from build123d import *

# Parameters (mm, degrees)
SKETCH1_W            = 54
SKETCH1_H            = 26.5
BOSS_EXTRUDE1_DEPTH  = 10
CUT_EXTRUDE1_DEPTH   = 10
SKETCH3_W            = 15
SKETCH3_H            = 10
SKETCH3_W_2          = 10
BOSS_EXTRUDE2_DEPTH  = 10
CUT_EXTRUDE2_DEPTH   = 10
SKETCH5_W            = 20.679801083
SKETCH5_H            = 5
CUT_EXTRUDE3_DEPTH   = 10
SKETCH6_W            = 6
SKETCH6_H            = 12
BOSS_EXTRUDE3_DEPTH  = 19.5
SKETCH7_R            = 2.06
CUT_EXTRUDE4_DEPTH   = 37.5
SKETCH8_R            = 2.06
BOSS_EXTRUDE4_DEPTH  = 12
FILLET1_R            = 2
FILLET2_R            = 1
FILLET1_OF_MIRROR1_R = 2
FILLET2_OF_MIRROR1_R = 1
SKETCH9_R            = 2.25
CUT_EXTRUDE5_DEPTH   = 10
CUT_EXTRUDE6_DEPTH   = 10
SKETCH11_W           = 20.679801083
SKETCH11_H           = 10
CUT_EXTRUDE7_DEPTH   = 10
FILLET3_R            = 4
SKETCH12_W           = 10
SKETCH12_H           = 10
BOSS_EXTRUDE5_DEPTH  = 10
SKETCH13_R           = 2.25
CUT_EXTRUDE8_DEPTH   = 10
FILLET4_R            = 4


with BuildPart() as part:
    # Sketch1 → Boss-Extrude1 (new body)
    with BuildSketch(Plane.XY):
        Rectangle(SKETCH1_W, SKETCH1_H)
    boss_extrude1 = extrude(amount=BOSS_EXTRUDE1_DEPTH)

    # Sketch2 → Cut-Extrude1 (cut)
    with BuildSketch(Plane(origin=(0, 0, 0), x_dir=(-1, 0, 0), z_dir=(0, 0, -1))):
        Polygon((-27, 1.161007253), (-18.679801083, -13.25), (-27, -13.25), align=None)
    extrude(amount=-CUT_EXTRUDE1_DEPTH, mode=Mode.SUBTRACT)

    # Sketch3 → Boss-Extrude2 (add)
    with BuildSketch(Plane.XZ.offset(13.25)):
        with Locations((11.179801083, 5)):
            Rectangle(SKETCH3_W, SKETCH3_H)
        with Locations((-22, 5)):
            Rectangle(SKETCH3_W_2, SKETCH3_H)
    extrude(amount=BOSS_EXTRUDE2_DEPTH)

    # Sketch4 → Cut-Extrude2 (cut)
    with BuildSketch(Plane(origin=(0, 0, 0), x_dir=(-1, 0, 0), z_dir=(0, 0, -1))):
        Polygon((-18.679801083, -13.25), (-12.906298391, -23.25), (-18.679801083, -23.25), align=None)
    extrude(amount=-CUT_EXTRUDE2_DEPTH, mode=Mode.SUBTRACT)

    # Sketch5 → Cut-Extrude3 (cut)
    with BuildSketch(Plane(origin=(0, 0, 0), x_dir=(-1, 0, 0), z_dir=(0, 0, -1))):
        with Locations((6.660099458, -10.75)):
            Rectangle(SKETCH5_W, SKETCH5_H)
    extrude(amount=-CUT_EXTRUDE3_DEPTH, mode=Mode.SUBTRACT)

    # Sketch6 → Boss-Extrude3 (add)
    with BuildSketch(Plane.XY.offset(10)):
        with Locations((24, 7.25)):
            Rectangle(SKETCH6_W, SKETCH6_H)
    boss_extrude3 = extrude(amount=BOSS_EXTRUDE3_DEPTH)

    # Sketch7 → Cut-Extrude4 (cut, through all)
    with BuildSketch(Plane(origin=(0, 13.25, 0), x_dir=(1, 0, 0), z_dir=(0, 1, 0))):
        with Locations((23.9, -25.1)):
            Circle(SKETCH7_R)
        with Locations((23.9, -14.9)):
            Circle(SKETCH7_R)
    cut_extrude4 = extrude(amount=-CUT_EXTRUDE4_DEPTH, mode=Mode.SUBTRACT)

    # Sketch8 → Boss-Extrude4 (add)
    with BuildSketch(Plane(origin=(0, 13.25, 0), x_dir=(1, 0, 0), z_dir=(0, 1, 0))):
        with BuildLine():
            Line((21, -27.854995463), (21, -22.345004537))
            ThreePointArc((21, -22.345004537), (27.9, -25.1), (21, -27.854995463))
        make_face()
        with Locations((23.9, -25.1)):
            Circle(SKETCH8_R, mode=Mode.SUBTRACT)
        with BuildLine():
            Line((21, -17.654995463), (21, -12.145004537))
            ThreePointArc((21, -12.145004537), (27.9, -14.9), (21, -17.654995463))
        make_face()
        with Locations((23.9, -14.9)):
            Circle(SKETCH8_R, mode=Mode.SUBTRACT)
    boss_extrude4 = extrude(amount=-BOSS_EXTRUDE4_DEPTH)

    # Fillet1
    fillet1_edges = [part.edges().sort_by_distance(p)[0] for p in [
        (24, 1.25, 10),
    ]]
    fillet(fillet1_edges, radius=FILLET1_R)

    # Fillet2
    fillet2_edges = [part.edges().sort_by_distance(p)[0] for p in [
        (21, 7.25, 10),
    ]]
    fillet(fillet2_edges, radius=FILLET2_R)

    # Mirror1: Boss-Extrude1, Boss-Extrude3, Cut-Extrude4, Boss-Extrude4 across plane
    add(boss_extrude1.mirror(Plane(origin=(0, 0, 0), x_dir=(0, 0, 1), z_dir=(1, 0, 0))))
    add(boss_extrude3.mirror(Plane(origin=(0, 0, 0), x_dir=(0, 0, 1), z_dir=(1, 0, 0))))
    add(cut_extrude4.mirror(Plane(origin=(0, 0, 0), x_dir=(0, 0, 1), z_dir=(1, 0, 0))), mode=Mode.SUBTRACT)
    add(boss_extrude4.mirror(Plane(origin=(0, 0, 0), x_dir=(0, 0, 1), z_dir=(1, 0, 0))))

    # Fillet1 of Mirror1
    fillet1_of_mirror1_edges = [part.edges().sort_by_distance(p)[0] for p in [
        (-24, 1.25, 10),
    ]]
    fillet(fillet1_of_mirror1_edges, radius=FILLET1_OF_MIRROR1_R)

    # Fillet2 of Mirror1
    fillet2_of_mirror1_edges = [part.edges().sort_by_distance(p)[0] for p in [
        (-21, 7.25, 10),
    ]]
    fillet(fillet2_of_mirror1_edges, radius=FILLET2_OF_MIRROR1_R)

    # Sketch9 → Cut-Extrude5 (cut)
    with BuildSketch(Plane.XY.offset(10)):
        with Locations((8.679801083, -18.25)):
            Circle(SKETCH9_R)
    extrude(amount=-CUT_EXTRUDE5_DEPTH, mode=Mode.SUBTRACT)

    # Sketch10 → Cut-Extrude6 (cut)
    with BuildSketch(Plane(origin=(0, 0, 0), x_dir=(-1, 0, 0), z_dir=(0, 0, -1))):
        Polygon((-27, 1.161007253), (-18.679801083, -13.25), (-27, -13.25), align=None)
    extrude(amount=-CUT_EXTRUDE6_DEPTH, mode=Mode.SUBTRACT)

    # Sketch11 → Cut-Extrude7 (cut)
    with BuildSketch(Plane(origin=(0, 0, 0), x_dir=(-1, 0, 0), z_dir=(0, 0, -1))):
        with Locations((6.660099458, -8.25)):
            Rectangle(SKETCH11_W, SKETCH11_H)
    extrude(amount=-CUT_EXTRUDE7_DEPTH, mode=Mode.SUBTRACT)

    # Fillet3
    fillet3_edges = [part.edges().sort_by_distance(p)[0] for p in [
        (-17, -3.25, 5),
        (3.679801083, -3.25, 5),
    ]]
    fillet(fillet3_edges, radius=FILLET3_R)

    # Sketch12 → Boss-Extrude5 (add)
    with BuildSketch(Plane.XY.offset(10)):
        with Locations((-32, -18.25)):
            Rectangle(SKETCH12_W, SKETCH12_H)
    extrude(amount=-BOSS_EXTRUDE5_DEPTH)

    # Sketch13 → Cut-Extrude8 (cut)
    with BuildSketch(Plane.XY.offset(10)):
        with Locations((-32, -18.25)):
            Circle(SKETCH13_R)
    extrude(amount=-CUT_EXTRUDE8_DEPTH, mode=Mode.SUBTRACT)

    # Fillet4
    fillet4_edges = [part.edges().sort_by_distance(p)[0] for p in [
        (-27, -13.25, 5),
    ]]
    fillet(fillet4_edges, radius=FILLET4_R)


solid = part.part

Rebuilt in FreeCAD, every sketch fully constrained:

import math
import FreeCAD as App
import Part
import Sketcher
Q = App.Units.Quantity


def edges_at(feature, points):
    """Names of the edges that pass closest to the given points."""
    edges = feature.Shape.Edges
    near = lambda p: min(range(len(edges)), key=lambda i: edges[i].distToShape(Part.Vertex(*p))[0])
    return sorted({f"Edge{near(p) + 1}" for p in points})


def add_polygon(sketch, points):
    """Adds a closed chain of lines whose ends are joined by coincident constraints."""
    first, n = sketch.GeometryCount, len(points)
    for a, b in zip(points, points[1:] + points[:1]):
        sketch.addGeometry(Part.LineSegment(App.Vector(*a, 0), App.Vector(*b, 0)), False)
    for i in range(n):
        sketch.addConstraint(Sketcher.Constraint("Coincident", first + i, 2, first + (i + 1) % n, 1))

doc = App.newDocument("Part")
body = doc.addObject("PartDesign::Body", "Body")

# Sketch on XY plane
sketch1 = body.newObject("Sketcher::SketchObject", "Sketch")
sketch1.AttachmentSupport = (doc.getObject("XY_Plane"), [""])
sketch1.MapMode = "FlatFace"
add_polygon(sketch1, [(-27, 13), (-27, -13), (27, -13), (27, 13)])  # lines 0-3
sketch1.addConstraint([
    Sketcher.Constraint("Vertical", 0),
    Sketcher.Constraint("Horizontal", 1),
    Sketcher.Constraint("Vertical", 2),
    Sketcher.Constraint("Horizontal", 3),
    Sketcher.Constraint("Symmetric", 0, 2, 2, 2, -1, 1),
    Sketcher.Constraint("DistanceX", 1, 1, 1, 2, Q("54 mm")),
    Sketcher.Constraint("DistanceY", 0, 2, 0, 1, Q("26.5 mm")),
])
pad1 = body.newObject("PartDesign::Pad", "Pad")
pad1.Profile = sketch1
pad1.Length = 10

# Sketch on XY plane
sketch2 = body.newObject("Sketcher::SketchObject", "Sketch001")
sketch2.AttachmentSupport = (doc.getObject("XY_Plane"), [""])
sketch2.MapMode = "FlatFace"
add_polygon(sketch2, [(19, -13), (27, 1), (27, -13)])  # lines 0-2
sketch2.addConstraint([
    Sketcher.Constraint("Vertical", 1),
    Sketcher.Constraint("Horizontal", 2),
    Sketcher.Constraint("Angle", 0, Q("60 deg")),
    Sketcher.Constraint("DistanceX", -1, 1, 0, 2, Q("27 mm")),
    Sketcher.Constraint("DistanceY", 1, 2, -1, 1, Q("13.25 mm")),
    Sketcher.Constraint("DistanceX", 2, 2, 2, 1, Q("8.320199 mm")),
])
pocket1 = body.newObject("PartDesign::Pocket", "Pocket")
pocket1.Profile = sketch2
pocket1.Length = 10
pocket1.Reversed = True

# Sketch on XZ plane
sketch3 = body.newObject("Sketcher::SketchObject", "Sketch002")
sketch3.AttachmentSupport = (doc.getObject("XZ_Plane"), [""])
sketch3.MapMode = "FlatFace"
sketch3.AttachmentOffset = App.Placement(App.Vector(0, 0, 13.25), App.Rotation())
add_polygon(sketch3, [(4, 10), (4, 0), (19, 0), (19, 10)])  # lines 0-3
add_polygon(sketch3, [(-27, 10), (-27, 0), (-17, 0), (-17, 10)])  # lines 4-7
sketch3.addConstraint([
    Sketcher.Constraint("Vertical", 0),
    Sketcher.Constraint("Horizontal", 1),
    Sketcher.Constraint("Vertical", 2),
    Sketcher.Constraint("Horizontal", 3),
    Sketcher.Constraint("Vertical", 4),
    Sketcher.Constraint("Horizontal", 5),
    Sketcher.Constraint("Vertical", 6),
    Sketcher.Constraint("Horizontal", 7),
    Sketcher.Constraint("PointOnObject", 0, 2, -1),
    Sketcher.Constraint("PointOnObject", 4, 2, -1),
    Sketcher.Constraint("Horizontal", 3, 2, 6, 2),
    Sketcher.Constraint("Equal", 7, 0),
    Sketcher.Constraint("DistanceX", 1, 1, 1, 2, Q("15 mm")),
    Sketcher.Constraint("DistanceX", 5, 1, 5, 2, Q("10 mm")),
    Sketcher.Constraint("DistanceX", 4, 2, -1, 1, Q("27 mm")),
    Sketcher.Constraint("DistanceX", -1, 1, 0, 2, Q("3.679801 mm")),
])
pad2 = body.newObject("PartDesign::Pad", "Pad001")
pad2.Profile = sketch3
pad2.Length = 10

# Sketch on XY plane
sketch4 = body.newObject("Sketcher::SketchObject", "Sketch003")
sketch4.AttachmentSupport = (doc.getObject("XY_Plane"), [""])
sketch4.MapMode = "FlatFace"
add_polygon(sketch4, [(13, -23), (19, -13), (19, -23)])  # lines 0-2
sketch4.addConstraint([
    Sketcher.Constraint("Vertical", 1),
    Sketcher.Constraint("Horizontal", 2),
    Sketcher.Constraint("DistanceY", 1, 2, 1, 1, Q("10 mm")),
    Sketcher.Constraint("Angle", 0, Q("60 deg")),
    Sketcher.Constraint("DistanceY", 0, 2, -1, 1, Q("13.25 mm")),
    Sketcher.Constraint("DistanceX", -1, 1, 0, 2, Q("18.679801 mm")),
])
pocket2 = body.newObject("PartDesign::Pocket", "Pocket001")
pocket2.Profile = sketch4
pocket2.Length = 10
pocket2.Reversed = True

# Sketch on XY plane
sketch5 = body.newObject("Sketcher::SketchObject", "Sketch004")
sketch5.AttachmentSupport = (doc.getObject("XY_Plane"), [""])
sketch5.MapMode = "FlatFace"
add_polygon(sketch5, [(4, -8), (4, -13), (-17, -13), (-17, -8)])  # lines 0-3
sketch5.addConstraint([
    Sketcher.Constraint("Vertical", 0),
    Sketcher.Constraint("Horizontal", 1),
    Sketcher.Constraint("Vertical", 2),
    Sketcher.Constraint("Horizontal", 3),
    Sketcher.Constraint("DistanceY", 0, 2, 0, 1, Q("5 mm")),
    Sketcher.Constraint("DistanceX", 1, 2, -1, 1, Q("17 mm")),
    Sketcher.Constraint("DistanceY", 0, 2, -1, 1, Q("13.25 mm")),
    Sketcher.Constraint("DistanceX", 1, 2, 1, 1, Q("20.679801 mm")),
])
pocket3 = body.newObject("PartDesign::Pocket", "Pocket002")
pocket3.Profile = sketch5
pocket3.Length = 10
pocket3.Reversed = True

# Sketch on XY plane
sketch6 = body.newObject("Sketcher::SketchObject", "Sketch005")
sketch6.AttachmentSupport = (doc.getObject("XY_Plane"), [""])
sketch6.MapMode = "FlatFace"
sketch6.AttachmentOffset = App.Placement(App.Vector(0, 0, 10), App.Rotation())
add_polygon(sketch6, [(21, 13), (21, 1), (27, 1), (27, 13)])  # lines 0-3
sketch6.addConstraint([
    Sketcher.Constraint("Vertical", 0),
    Sketcher.Constraint("Horizontal", 1),
    Sketcher.Constraint("Vertical", 2),
    Sketcher.Constraint("Horizontal", 3),
    Sketcher.Constraint("DistanceX", 1, 1, 1, 2, Q("6 mm")),
    Sketcher.Constraint("DistanceY", 0, 2, 0, 1, Q("12 mm")),
    Sketcher.Constraint("DistanceX", -1, 1, 0, 2, Q("21 mm")),
    Sketcher.Constraint("DistanceY", -1, 1, 0, 2, Q("1.25 mm")),
])
pad3 = body.newObject("PartDesign::Pad", "Pad002")
pad3.Profile = sketch6
pad3.Length = 19.5

# Sketch on XZ plane
sketch7 = body.newObject("Sketcher::SketchObject", "Sketch006")
sketch7.AttachmentSupport = (doc.getObject("XZ_Plane"), [""])
sketch7.MapMode = "FlatFace"
sketch7.AttachmentOffset = App.Placement(App.Vector(0, 0, -13.25), App.Rotation())
sketch7.addGeometry([
    Part.Circle(App.Vector(23.9, 25.1, 0), App.Vector(0, 0, 1), 2.1),
    Part.Circle(App.Vector(23.9, 14.9, 0), App.Vector(0, 0, 1), 2.1),
], False)
sketch7.addConstraint([
    Sketcher.Constraint("Equal", 0, 1),
    Sketcher.Constraint("Vertical", 0, 3, 1, 3),
    Sketcher.Constraint("Diameter", 0, Q("4.12 mm")),
    Sketcher.Constraint("DistanceX", -1, 1, 0, 3, Q("23.9 mm")),
    Sketcher.Constraint("DistanceY", -1, 1, 0, 3, Q("25.1 mm")),
    Sketcher.Constraint("DistanceY", -1, 1, 1, 3, Q("14.9 mm")),
])
pocket4 = body.newObject("PartDesign::Pocket", "Pocket003")
pocket4.Profile = sketch7
pocket4.Type = "ThroughAll"
pocket4.Reversed = True

# Sketch on XZ plane
sketch8 = body.newObject("Sketcher::SketchObject", "Sketch007")
sketch8.AttachmentSupport = (doc.getObject("XZ_Plane"), [""])
sketch8.MapMode = "FlatFace"
sketch8.AttachmentOffset = App.Placement(App.Vector(0, 0, -13.25), App.Rotation())
sketch8.addGeometry([
    Part.LineSegment(App.Vector(21, 22.3, 0), App.Vector(21, 27.9, 0)),  # 0
    Part.ArcOfCircle(Part.Circle(App.Vector(23.9, 25.1, 0), App.Vector(0, 0, 1), 4), math.radians(-136), math.radians(136)),  # 1
    Part.Circle(App.Vector(23.9, 25.1, 0), App.Vector(0, 0, 1), 2.1),  # 2
    Part.LineSegment(App.Vector(21, 12.1, 0), App.Vector(21, 17.7, 0)),  # 3
    Part.ArcOfCircle(Part.Circle(App.Vector(23.9, 14.9, 0), App.Vector(0, 0, 1), 4), math.radians(-136), math.radians(136)),  # 4
    Part.Circle(App.Vector(23.9, 14.9, 0), App.Vector(0, 0, 1), 2.1),  # 5
], False)
sketch8.addConstraint([
    Sketcher.Constraint("Coincident", 0, 1, 1, 1),
    Sketcher.Constraint("Coincident", 1, 2, 0, 2),
    Sketcher.Constraint("Coincident", 3, 1, 4, 1),
    Sketcher.Constraint("Coincident", 4, 2, 3, 2),
    Sketcher.Constraint("Vertical", 0),
    Sketcher.Constraint("Vertical", 3),
    Sketcher.Constraint("Coincident", 2, 3, 1, 3),
    Sketcher.Constraint("Coincident", 5, 3, 4, 3),
    Sketcher.Constraint("Equal", 1, 4),
    Sketcher.Constraint("Equal", 2, 5),
    Sketcher.Constraint("Vertical", 2, 3, 4, 3),
    Sketcher.Constraint("Vertical", 1, 2, 3, 1),
    Sketcher.Constraint("Radius", 1, Q("4 mm")),
    Sketcher.Constraint("Diameter", 2, Q("4.12 mm")),
    Sketcher.Constraint("DistanceX", -1, 1, 0, 1, Q("21 mm")),
    Sketcher.Constraint("DistanceX", -1, 1, 1, 3, Q("23.9 mm")),
    Sketcher.Constraint("DistanceY", -1, 1, 1, 3, Q("25.1 mm")),
    Sketcher.Constraint("DistanceY", -1, 1, 4, 3, Q("14.9 mm")),
])
pad4 = body.newObject("PartDesign::Pad", "Pad003")
pad4.Profile = sketch8
pad4.Length = 12
doc.recompute()

fillet = body.newObject("PartDesign::Fillet", "Fillet")
fillet.Base = (pad4, edges_at(pad4, [(24, 1.25, 10)]))
fillet.Radius = 2
doc.recompute()

fillet2 = body.newObject("PartDesign::Fillet", "Fillet001")
fillet2.Base = (fillet, edges_at(fillet, [(21, 6.25, 10)]))
fillet2.Radius = 1
doc.recompute()

mirrored = body.newObject("PartDesign::Mirrored", "Mirrored")
mirrored.Originals = [pad1, pad3, pocket4, pad4]
mirrored.MirrorPlane = (doc.getObject("YZ_Plane"), [""])
body.Tip = mirrored
doc.recompute()

fillet3 = body.newObject("PartDesign::Fillet", "Fillet002")
fillet3.Base = (mirrored, edges_at(mirrored, [(-24, 1.25, 10)]))
fillet3.Radius = 2
doc.recompute()

fillet4 = body.newObject("PartDesign::Fillet", "Fillet003")
fillet4.Base = (fillet3, edges_at(fillet3, [(-21, 6.25, 10)]))
fillet4.Radius = 1

# Sketch on XY plane
sketch9 = body.newObject("Sketcher::SketchObject", "Sketch008")
sketch9.AttachmentSupport = (doc.getObject("XY_Plane"), [""])
sketch9.MapMode = "FlatFace"
sketch9.AttachmentOffset = App.Placement(App.Vector(0, 0, 10), App.Rotation())
sketch9.addGeometry(Part.Circle(App.Vector(8.7, -18.2, 0), App.Vector(0, 0, 1), 2.2), False)
sketch9.addConstraint([
    Sketcher.Constraint("Diameter", 0, Q("4.5 mm")),
    Sketcher.Constraint("DistanceY", 0, 3, -1, 1, Q("18.25 mm")),
    Sketcher.Constraint("DistanceX", -1, 1, 0, 3, Q("8.679801 mm")),
])
pocket5 = body.newObject("PartDesign::Pocket", "Pocket004")
pocket5.Profile = sketch9
pocket5.Length = 10

# Sketch on XY plane
sketch10 = body.newObject("Sketcher::SketchObject", "Sketch009")
sketch10.AttachmentSupport = (doc.getObject("XY_Plane"), [""])
sketch10.MapMode = "FlatFace"
add_polygon(sketch10, [(19, -13), (27, 1), (27, -13)])  # lines 0-2
sketch10.addConstraint([
    Sketcher.Constraint("Vertical", 1),
    Sketcher.Constraint("Horizontal", 2),
    Sketcher.Constraint("Angle", 0, Q("60 deg")),
    Sketcher.Constraint("DistanceX", -1, 1, 0, 2, Q("27 mm")),
    Sketcher.Constraint("DistanceY", 1, 2, -1, 1, Q("13.25 mm")),
    Sketcher.Constraint("DistanceX", 2, 2, 2, 1, Q("8.320199 mm")),
])
pocket6 = body.newObject("PartDesign::Pocket", "Pocket005")
pocket6.Profile = sketch10
pocket6.Length = 10
pocket6.Reversed = True

# Sketch on XY plane
sketch11 = body.newObject("Sketcher::SketchObject", "Sketch010")
sketch11.AttachmentSupport = (doc.getObject("XY_Plane"), [""])
sketch11.MapMode = "FlatFace"
add_polygon(sketch11, [(4, -3), (4, -13), (-17, -13), (-17, -3)])  # lines 0-3
sketch11.addConstraint([
    Sketcher.Constraint("Vertical", 0),
    Sketcher.Constraint("Horizontal", 1),
    Sketcher.Constraint("Vertical", 2),
    Sketcher.Constraint("Horizontal", 3),
    Sketcher.Constraint("DistanceY", 0, 2, 0, 1, Q("10 mm")),
    Sketcher.Constraint("DistanceX", 1, 2, -1, 1, Q("17 mm")),
    Sketcher.Constraint("DistanceY", 0, 2, -1, 1, Q("13.25 mm")),
    Sketcher.Constraint("DistanceX", 1, 2, 1, 1, Q("20.679801 mm")),
])
pocket7 = body.newObject("PartDesign::Pocket", "Pocket006")
pocket7.Profile = sketch11
pocket7.Length = 10
pocket7.Reversed = True
doc.recompute()

fillet5 = body.newObject("PartDesign::Fillet", "Fillet004")
fillet5.Base = (pocket7, edges_at(pocket7, [(-17, -3.25, 5), (3.68, -3.25, 5)]))
fillet5.Radius = 4

# Sketch on XY plane
sketch12 = body.newObject("Sketcher::SketchObject", "Sketch011")
sketch12.AttachmentSupport = (doc.getObject("XY_Plane"), [""])
sketch12.MapMode = "FlatFace"
sketch12.AttachmentOffset = App.Placement(App.Vector(0, 0, 10), App.Rotation())
add_polygon(sketch12, [(-37, -13), (-37, -23), (-27, -23), (-27, -13)])  # lines 0-3
sketch12.addConstraint([
    Sketcher.Constraint("Vertical", 0),
    Sketcher.Constraint("Horizontal", 1),
    Sketcher.Constraint("Vertical", 2),
    Sketcher.Constraint("Horizontal", 3),
    Sketcher.Constraint("Equal", 3, 0),
    Sketcher.Constraint("DistanceX", 1, 1, 1, 2, Q("10 mm")),
    Sketcher.Constraint("DistanceX", 0, 2, -1, 1, Q("37 mm")),
    Sketcher.Constraint("DistanceY", 0, 2, -1, 1, Q("23.25 mm")),
])
pad5 = body.newObject("PartDesign::Pad", "Pad004")
pad5.Profile = sketch12
pad5.Length = 10
pad5.Reversed = True

# Sketch on XY plane
sketch13 = body.newObject("Sketcher::SketchObject", "Sketch012")
sketch13.AttachmentSupport = (doc.getObject("XY_Plane"), [""])
sketch13.MapMode = "FlatFace"
sketch13.AttachmentOffset = App.Placement(App.Vector(0, 0, 10), App.Rotation())
sketch13.addGeometry(Part.Circle(App.Vector(-32, -18.2, 0), App.Vector(0, 0, 1), 2.2), False)
sketch13.addConstraint([
    Sketcher.Constraint("Diameter", 0, Q("4.5 mm")),
    Sketcher.Constraint("DistanceX", 0, 3, -1, 1, Q("32 mm")),
    Sketcher.Constraint("DistanceY", 0, 3, -1, 1, Q("18.25 mm")),
])
pocket8 = body.newObject("PartDesign::Pocket", "Pocket007")
pocket8.Profile = sketch13
pocket8.Length = 10
doc.recompute()

fillet6 = body.newObject("PartDesign::Fillet", "Fillet005")
fillet6.Base = (pocket8, edges_at(pocket8, [(-27, -13.25, 5)]))
fillet6.Radius = 4

doc.recompute()
